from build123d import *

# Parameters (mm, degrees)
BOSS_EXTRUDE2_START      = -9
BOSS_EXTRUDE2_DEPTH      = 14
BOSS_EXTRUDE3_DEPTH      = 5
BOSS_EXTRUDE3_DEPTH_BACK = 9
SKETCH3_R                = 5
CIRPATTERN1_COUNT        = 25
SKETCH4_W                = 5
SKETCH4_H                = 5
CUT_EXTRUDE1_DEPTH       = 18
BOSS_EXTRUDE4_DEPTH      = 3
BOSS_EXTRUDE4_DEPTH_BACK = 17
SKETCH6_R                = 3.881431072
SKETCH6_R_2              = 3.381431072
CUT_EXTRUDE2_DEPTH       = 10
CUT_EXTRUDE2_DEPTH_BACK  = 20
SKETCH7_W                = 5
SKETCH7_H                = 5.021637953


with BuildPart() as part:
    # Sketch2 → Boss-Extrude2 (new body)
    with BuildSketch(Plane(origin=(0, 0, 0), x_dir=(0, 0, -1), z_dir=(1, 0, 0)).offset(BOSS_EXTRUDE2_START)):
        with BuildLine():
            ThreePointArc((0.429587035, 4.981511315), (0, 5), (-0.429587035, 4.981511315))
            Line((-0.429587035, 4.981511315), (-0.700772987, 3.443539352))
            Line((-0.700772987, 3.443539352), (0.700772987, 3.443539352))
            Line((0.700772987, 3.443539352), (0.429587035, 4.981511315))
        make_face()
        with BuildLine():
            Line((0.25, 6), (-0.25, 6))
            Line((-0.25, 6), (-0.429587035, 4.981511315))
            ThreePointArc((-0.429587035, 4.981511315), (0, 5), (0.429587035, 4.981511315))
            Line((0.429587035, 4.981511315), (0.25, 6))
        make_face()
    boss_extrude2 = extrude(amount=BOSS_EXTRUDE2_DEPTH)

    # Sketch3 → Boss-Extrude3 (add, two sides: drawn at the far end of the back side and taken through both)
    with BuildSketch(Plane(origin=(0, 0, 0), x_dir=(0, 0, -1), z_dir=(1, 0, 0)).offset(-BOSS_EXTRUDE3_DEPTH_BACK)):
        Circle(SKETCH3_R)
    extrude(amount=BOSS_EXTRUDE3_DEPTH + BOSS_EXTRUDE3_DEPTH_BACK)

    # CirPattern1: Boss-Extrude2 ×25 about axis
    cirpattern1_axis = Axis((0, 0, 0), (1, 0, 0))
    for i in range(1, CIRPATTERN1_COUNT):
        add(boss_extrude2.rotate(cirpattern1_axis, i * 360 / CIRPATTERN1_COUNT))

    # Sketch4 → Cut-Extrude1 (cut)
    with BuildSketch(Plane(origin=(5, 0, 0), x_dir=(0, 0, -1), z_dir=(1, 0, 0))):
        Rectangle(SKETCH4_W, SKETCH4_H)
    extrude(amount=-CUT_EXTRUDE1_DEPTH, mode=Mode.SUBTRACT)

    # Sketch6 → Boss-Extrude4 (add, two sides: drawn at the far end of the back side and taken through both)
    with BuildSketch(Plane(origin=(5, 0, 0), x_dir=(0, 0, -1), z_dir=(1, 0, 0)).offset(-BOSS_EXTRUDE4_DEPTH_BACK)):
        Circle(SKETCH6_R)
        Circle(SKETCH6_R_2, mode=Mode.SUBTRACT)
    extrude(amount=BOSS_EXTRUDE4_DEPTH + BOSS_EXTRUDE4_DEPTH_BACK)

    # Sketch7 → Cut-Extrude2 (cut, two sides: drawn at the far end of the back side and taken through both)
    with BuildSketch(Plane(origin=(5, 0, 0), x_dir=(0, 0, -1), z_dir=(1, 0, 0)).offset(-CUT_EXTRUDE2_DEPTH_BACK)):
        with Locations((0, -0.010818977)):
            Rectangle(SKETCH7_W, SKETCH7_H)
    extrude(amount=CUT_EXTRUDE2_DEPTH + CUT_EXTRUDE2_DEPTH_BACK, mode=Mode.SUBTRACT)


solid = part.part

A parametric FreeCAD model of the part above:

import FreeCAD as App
import Part
import Sketcher
Q = App.Units.Quantity


def add_polygon(sketch, points):
    """Adds a closed chain of lines whose ends are joined by coincident constraints."""
    first, n = sketch.GeometryCount, len(points)
    for a, b in zip(points, points[1:] + points[:1]):
        sketch.addGeometry(Part.LineSegment(App.Vector(*a, 0), App.Vector(*b, 0)), False)
    for i in range(n):
        sketch.addConstraint(Sketcher.Constraint("Coincident", first + i, 2, first + (i + 1) % n, 1))

doc = App.newDocument("Part")
body = doc.addObject("PartDesign::Body", "Body")

# Sketch on YZ plane
sketch1 = body.newObject("Sketcher::SketchObject", "Sketch")
sketch1.AttachmentSupport = (doc.getObject("YZ_Plane"), [""])
sketch1.MapMode = "FlatFace"
sketch1.AttachmentOffset = App.Placement(App.Vector(0, 0, -9), App.Rotation())
add_polygon(sketch1, [(4.981511, 0.429587), (3.443539, 0.700773), (3.443539, -0.700773), (4.981511, -0.429587), (6, -0.25), (6, 0.25)])  # lines 0-5
sketch1.addConstraint(Sketcher.Constraint("Vertical", 1))
sketch1.addConstraint(Sketcher.Constraint("Vertical", 4))
sketch1.addConstraint(Sketcher.Constraint("Symmetric", 2, 2, 5, 2, -1))
sketch1.addConstraint(Sketcher.Constraint("Parallel", 2, 3))
sketch1.addConstraint(Sketcher.Constraint("Parallel", 0, 5))
sketch1.addConstraint(Sketcher.Constraint("Equal", 0, 2))
sketch1.addConstraint(Sketcher.Constraint("Angle", 0, Q("170 deg")))
sketch1.addConstraint(Sketcher.Constraint("DistanceY", 4, 1, 4, 2, Q("0.5 mm")))
sketch1.addConstraint(Sketcher.Constraint("DistanceX", -1, 1, 3, 2, Q("6 mm")))
sketch1.addConstraint(Sketcher.Constraint("Distance", 3, Q("1.034201 mm")))
sketch1.addConstraint(Sketcher.Constraint("DistanceY", 1, 2, 1, 1, Q("1.401546 mm")))
pad1 = body.newObject("PartDesign::Pad", "Pad")
pad1.Profile = sketch1
pad1.Length = 14

# Sketch on YZ plane
sketch2 = body.newObject("Sketcher::SketchObject", "Sketch001")
sketch2.AttachmentSupport = (doc.getObject("YZ_Plane"), [""])
sketch2.MapMode = "FlatFace"
sketch2.addGeometry(Part.Circle(App.Vector(0, 0, 0), App.Vector(0, 0, 1), 5), False)
sketch2.addConstraint(Sketcher.Constraint("Coincident", 0, 3, -1, 1))
sketch2.addConstraint(Sketcher.Constraint("Diameter", 0, Q("10 mm")))
pad2 = body.newObject("PartDesign::Pad", "Pad001")
pad2.Profile = sketch2
pad2.Type = "TwoLengths"
pad2.Length = 5
pad2.Length2 = 9
doc.recompute()

polarpattern = body.newObject("PartDesign::PolarPattern", "PolarPattern")
polarpattern.Originals = [pad1]
polarpattern.Axis = (doc.getObject("X_Axis"), [""])
polarpattern.Angle = 360
polarpattern.Occurrences = 25
body.Tip = polarpattern

# Sketch on YZ plane
sketch3 = body.newObject("Sketcher::SketchObject", "Sketch002")
sketch3.AttachmentSupport = (doc.getObject("YZ_Plane"), [""])
sketch3.MapMode = "FlatFace"
sketch3.AttachmentOffset = App.Placement(App.Vector(0, 0, 5), App.Rotation())
add_polygon(sketch3, [(2.5, 2.5), (-2.5, 2.5), (-2.5, -2.5), (2.5, -2.5)])  # lines 0-3
sketch3.addConstraint(Sketcher.Constraint("Horizontal", 0))
sketch3.addConstraint(Sketcher.Constraint("Vertical", 1))
sketch3.addConstraint(Sketcher.Constraint("Horizontal", 2))
sketch3.addConstraint(Sketcher.Constraint("Vertical", 3))
sketch3.addConstraint(Sketcher.Constraint("Symmetric", 0, 2, 2, 2, -1, 1))
sketch3.addConstraint(Sketcher.Constraint("Equal", 2, 1))
sketch3.addConstraint(Sketcher.Constraint("DistanceX", 0, 2, 0, 1, Q("5 mm")))
pocket1 = body.newObject("PartDesign::Pocket", "Pocket")
pocket1.Profile = sketch3
pocket1.Length = 18

# Sketch on YZ plane
sketch4 = body.newObject("Sketcher::SketchObject", "Sketch003")
sketch4.AttachmentSupport = (doc.getObject("YZ_Plane"), [""])
sketch4.MapMode = "FlatFace"
sketch4.AttachmentOffset = App.Placement(App.Vector(0, 0, 5), App.Rotation())
sketch4.addGeometry(Part.Circle(App.Vector(0, 0, 0), App.Vector(0, 0, 1), 3.881431), False)
sketch4.addGeometry(Part.Circle(App.Vector(0, 0, 0), App.Vector(0, 0, 1), 3.381431), False)
sketch4.addConstraint(Sketcher.Constraint("Coincident", 0, 3, -1, 1))
sketch4.addConstraint(Sketcher.Constraint("Coincident", 1, 3, -1, 1))
sketch4.addConstraint(Sketcher.Constraint("Diameter", 0, Q("7.762862 mm")))
sketch4.addConstraint(Sketcher.Constraint("Diameter", 1, Q("6.762862 mm")))
pad3 = body.newObject("PartDesign::Pad", "Pad002")
pad3.Profile = sketch4
pad3.Type = "TwoLengths"
pad3.Length = 3
pad3.Length2 = 17

# Sketch on YZ plane
sketch5 = body.newObject("Sketcher::SketchObject", "Sketch004")
sketch5.AttachmentSupport = (doc.getObject("YZ_Plane"), [""])
sketch5.MapMode = "FlatFace"
sketch5.AttachmentOffset = App.Placement(App.Vector(0, 0, 5), App.Rotation())
add_polygon(sketch5, [(2.5, 2.5), (-2.521638, 2.5), (-2.521638, -2.5), (2.5, -2.5)])  # lines 0-3
sketch5.addConstraint(Sketcher.Constraint("Horizontal", 0))
sketch5.addConstraint(Sketcher.Constraint("Vertical", 1))
sketch5.addConstraint(Sketcher.Constraint("Horizontal", 2))
sketch5.addConstraint(Sketcher.Constraint("Vertical", 3))
sketch5.addConstraint(Sketcher.Constraint("DistanceY", 1, 2, 1, 1, Q("5 mm")))
sketch5.addConstraint(Sketcher.Constraint("DistanceY", -1, 1, 0, 2, Q("2.5 mm")))
sketch5.addConstraint(Sketcher.Constraint("DistanceX", -1, 1, 2, 2, Q("2.5 mm")))
sketch5.addConstraint(Sketcher.Constraint("DistanceX", 0, 2, 0, 1, Q("5.021638 mm")))
pocket2 = body.newObject("PartDesign::Pocket", "Pocket001")
pocket2.Profile = sketch5
pocket2.Type = "ThroughAll"
pocket2.Midplane = True

doc.recompute()
